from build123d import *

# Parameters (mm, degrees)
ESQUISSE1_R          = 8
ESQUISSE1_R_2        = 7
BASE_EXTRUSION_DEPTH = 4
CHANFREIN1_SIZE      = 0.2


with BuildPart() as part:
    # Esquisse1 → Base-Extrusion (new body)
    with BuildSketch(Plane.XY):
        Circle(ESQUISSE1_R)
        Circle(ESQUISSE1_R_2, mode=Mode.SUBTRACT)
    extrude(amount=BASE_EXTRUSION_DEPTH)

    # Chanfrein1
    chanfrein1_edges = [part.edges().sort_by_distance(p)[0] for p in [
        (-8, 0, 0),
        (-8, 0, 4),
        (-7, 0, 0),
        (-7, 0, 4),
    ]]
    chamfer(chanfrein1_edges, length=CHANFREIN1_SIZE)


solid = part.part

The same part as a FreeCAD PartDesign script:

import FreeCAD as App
import Part
import Sketcher


def edges_at(feature, points):
    """Names of the edges that pass closest to the given points."""
    edges = feature.Shape.Edges
    near = lambda p: min(range(len(edges)), key=lambda i: edges[i].distToShape(Part.Vertex(*p))[0])
    return sorted({f"Edge{near(p) + 1}" for p in points})

doc = App.newDocument("Part")
body = doc.addObject("PartDesign::Body", "Body")

# Sketch on XY plane
sketch1 = body.newObject("Sketcher::SketchObject", "Sketch")
sketch1.AttachmentSupport = (doc.getObject("XY_Plane"), [""])
sketch1.MapMode = "FlatFace"
sketch1.addGeometry([
    Part.Circle(App.Vector(0, 0, 0), App.Vector(0, 0, 1), 8),
    Part.Circle(App.Vector(0, 0, 0), App.Vector(0, 0, 1), 7),
], False)
sketch1.addConstraint([
    Sketcher.Constraint("Coincident", 0, 3, -1, 1),
    Sketcher.Constraint("Coincident", 1, 3, -1, 1),
    Sketcher.Constraint("Diameter", 0, 16.0),
    Sketcher.Constraint("Diameter", 1, 14.0),
])
pad1 = body.newObject("PartDesign::Pad", "Pad")
pad1.Profile = sketch1
pad1.Length = 4
doc.recompute()

chamfer = body.newObject("PartDesign::Chamfer", "Chamfer")
chamfer.Base = (pad1, edges_at(pad1, [
    (-8, 0, 0),
    (-8, 0, 4),
    (-7, 0, 0),
    (-7, 0, 4),
]))
chamfer.Size = 0.2

doc.recompute()
